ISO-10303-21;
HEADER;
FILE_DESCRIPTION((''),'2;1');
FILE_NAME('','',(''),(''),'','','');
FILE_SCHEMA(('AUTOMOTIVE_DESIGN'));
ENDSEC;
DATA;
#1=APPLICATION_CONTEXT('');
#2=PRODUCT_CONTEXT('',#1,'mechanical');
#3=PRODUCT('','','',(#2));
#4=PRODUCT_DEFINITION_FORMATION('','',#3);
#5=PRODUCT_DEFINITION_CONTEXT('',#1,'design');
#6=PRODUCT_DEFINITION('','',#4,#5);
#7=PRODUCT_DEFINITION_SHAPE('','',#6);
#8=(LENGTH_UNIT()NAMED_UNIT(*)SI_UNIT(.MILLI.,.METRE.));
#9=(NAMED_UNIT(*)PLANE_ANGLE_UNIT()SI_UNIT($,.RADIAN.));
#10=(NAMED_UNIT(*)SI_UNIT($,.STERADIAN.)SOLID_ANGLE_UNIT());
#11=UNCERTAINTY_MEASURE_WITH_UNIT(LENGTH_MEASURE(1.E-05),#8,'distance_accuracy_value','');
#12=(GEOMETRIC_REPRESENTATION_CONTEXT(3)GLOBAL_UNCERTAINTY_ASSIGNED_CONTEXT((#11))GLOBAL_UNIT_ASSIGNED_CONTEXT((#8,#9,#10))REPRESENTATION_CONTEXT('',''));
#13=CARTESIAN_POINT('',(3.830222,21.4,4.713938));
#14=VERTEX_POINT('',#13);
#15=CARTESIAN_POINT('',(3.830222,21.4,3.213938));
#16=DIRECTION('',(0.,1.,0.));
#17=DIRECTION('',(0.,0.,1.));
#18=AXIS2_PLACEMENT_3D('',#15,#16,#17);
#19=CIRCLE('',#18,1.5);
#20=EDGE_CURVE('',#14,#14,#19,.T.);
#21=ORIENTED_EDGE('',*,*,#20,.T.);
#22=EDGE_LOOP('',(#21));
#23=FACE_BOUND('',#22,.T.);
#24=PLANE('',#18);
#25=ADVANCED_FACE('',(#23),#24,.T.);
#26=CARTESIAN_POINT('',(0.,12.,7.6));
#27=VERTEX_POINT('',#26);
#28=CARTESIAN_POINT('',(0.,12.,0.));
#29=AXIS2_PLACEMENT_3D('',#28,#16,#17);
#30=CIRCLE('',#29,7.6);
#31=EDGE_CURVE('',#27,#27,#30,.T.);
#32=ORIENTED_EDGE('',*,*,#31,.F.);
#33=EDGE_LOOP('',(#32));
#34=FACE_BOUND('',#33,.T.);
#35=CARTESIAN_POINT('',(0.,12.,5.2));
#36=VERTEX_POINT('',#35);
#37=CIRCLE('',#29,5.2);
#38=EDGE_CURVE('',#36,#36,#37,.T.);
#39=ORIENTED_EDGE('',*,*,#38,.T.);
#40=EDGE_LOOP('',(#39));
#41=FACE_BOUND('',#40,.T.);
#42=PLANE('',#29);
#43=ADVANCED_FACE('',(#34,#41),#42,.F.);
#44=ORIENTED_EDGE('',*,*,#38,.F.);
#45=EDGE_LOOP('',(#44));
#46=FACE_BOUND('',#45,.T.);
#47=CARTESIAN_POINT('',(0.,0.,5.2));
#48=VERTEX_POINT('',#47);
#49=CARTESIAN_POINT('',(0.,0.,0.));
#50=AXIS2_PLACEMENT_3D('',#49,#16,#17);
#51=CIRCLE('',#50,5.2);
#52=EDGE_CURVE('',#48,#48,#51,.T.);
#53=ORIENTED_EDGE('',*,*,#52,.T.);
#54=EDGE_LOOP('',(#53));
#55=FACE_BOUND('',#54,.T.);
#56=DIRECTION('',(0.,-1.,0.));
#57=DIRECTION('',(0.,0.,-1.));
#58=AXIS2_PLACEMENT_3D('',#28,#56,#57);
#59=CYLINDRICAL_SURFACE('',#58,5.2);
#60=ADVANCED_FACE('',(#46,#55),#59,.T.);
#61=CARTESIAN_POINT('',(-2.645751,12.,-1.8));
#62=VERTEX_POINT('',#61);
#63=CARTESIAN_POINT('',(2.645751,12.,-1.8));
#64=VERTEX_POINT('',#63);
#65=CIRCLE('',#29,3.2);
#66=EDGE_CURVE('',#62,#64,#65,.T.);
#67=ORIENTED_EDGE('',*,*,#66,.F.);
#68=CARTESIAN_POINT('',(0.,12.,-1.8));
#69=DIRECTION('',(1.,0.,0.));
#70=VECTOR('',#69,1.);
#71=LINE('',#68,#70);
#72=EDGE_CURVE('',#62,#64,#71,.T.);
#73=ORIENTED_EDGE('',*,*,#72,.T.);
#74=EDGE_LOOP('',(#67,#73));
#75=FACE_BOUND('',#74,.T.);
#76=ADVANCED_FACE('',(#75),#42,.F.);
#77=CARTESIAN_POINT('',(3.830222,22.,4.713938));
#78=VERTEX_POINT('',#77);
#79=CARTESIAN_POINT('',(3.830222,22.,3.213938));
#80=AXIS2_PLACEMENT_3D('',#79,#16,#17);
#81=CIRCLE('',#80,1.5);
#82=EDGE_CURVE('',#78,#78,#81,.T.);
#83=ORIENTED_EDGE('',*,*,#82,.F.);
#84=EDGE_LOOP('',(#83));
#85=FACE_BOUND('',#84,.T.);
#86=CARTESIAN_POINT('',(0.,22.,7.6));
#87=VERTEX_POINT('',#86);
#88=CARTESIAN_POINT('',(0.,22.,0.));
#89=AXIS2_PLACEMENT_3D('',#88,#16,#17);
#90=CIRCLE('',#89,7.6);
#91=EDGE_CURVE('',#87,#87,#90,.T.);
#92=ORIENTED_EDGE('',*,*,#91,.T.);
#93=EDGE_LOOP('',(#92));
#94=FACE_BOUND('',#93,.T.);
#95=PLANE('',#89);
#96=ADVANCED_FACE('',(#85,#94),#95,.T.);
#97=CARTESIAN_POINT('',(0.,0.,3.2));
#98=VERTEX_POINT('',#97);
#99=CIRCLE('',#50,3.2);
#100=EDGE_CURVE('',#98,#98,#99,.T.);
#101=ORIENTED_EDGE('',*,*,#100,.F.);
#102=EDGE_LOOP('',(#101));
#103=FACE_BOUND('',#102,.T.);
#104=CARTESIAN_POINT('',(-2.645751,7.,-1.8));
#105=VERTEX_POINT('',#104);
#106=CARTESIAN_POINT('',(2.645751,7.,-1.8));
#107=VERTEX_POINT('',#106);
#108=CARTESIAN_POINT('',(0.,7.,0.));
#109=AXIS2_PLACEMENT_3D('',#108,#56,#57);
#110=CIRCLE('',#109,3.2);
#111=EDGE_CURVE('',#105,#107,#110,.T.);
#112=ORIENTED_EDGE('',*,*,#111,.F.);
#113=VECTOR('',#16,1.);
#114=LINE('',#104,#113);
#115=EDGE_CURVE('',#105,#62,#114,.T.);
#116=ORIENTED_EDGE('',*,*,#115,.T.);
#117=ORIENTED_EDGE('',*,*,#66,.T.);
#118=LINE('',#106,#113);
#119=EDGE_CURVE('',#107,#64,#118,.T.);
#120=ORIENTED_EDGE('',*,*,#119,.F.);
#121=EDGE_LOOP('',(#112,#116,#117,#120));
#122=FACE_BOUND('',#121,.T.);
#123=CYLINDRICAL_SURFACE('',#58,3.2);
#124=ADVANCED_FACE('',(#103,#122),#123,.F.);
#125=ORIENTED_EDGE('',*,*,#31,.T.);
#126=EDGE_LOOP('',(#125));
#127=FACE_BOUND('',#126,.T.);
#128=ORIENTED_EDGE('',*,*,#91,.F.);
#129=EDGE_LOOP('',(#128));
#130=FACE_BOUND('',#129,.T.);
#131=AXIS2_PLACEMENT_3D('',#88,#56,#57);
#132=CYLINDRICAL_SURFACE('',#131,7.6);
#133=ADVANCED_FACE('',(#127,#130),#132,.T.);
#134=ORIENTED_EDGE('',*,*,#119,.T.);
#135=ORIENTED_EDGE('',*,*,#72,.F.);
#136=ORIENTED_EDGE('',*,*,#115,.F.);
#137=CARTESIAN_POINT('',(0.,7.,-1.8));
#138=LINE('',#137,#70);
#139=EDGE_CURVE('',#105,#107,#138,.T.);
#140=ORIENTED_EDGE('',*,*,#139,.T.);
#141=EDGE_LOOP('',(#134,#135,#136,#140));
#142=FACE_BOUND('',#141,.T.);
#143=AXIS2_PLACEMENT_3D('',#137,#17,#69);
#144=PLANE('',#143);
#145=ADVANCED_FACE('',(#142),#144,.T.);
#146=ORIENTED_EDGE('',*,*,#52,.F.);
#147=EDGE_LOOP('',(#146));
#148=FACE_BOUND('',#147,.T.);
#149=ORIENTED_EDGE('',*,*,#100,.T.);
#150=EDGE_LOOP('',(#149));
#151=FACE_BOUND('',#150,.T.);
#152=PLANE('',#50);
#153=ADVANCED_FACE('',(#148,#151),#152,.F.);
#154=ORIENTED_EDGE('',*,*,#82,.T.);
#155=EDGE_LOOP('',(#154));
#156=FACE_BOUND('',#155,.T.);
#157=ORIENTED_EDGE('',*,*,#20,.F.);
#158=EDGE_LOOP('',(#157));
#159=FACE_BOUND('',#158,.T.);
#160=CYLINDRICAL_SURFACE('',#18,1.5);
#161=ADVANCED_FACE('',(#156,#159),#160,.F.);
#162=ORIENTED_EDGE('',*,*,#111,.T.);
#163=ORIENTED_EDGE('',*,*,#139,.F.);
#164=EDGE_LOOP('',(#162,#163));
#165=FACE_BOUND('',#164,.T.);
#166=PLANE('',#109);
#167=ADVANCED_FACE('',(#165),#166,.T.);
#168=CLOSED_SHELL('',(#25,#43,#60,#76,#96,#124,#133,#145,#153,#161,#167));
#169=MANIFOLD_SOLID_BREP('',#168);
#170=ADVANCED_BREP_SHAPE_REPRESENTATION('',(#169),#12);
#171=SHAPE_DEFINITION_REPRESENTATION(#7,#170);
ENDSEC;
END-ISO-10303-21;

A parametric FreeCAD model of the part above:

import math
import FreeCAD as App
import Part
import Sketcher

doc = App.newDocument("Part")
body = doc.addObject("PartDesign::Body", "Body")

sketch1 = body.newObject("Sketcher::SketchObject", "Sketch")
sketch1.AttachmentSupport = (doc.getObject("XZ_Plane"), [""])
sketch1.MapMode = "FlatFace"
sketch1.addGeometry(Part.Circle(App.Vector(0, 0, 0), App.Vector(0, 0, 1), 5.2), False)
sketch1.addGeometry(Part.Circle(App.Vector(0, 0, 0), App.Vector(0, 0, 1), 3.2), False)
sketch1.addConstraint(Sketcher.Constraint("Coincident", 0, 3, -1, 1))
sketch1.addConstraint(Sketcher.Constraint("Coincident", 1, 3, -1, 1))
sketch1.addConstraint(Sketcher.Constraint("Diameter", 0, 10.4))
sketch1.addConstraint(Sketcher.Constraint("Diameter", 1, 6.4))
pad1 = body.newObject("PartDesign::Pad", "Pad")
pad1.Profile = sketch1
pad1.Length = 12
pad1.Reversed = True

sketch2 = body.newObject("Sketcher::SketchObject", "Sketch001")
sketch2.AttachmentSupport = (doc.getObject("XZ_Plane"), [""])
sketch2.MapMode = "FlatFace"
sketch2.AttachmentOffset = App.Placement(App.Vector(0, 0, -12), App.Rotation())
sketch2.addGeometry(Part.Circle(App.Vector(0, 0, 0), App.Vector(0, 0, 1), 7.6), False)
sketch2.addConstraint(Sketcher.Constraint("Coincident", 0, 3, -1, 1))
sketch2.addConstraint(Sketcher.Constraint("Diameter", 0, 15.2))
pad2 = body.newObject("PartDesign::Pad", "Pad001")
pad2.Profile = sketch2
pad2.Length = 10
pad2.Reversed = True

sketch3 = body.newObject("Sketcher::SketchObject", "Sketch002")
sketch3.AttachmentSupport = (doc.getObject("XZ_Plane"), [""])
sketch3.MapMode = "FlatFace"
sketch3.AttachmentOffset = App.Placement(App.Vector(0, 0, -7), App.Rotation())
sketch3.addGeometry(Part.LineSegment(App.Vector(2.645751, -1.8, 0), App.Vector(-2.645751, -1.8, 0)), False)
sketch3.addGeometry(Part.ArcOfCircle(Part.Circle(App.Vector(0, 0, 0), App.Vector(0, 0, 1), 3.2), math.radians(-145.771134), math.radians(-34.228866)), False)
sketch3.addConstraint(Sketcher.Constraint("Coincident", 0, 1, 1, 2))
sketch3.addConstraint(Sketcher.Constraint("Coincident", 1, 1, 0, 2))
sketch3.addConstraint(Sketcher.Constraint("Horizontal", 0))
sketch3.addConstraint(Sketcher.Constraint("Coincident", 1, 3, -1, 1))
sketch3.addConstraint(Sketcher.Constraint("Radius", 1, 3.2))
sketch3.addConstraint(Sketcher.Constraint("DistanceY", 0, 1, -1, 1, 1.8))
pad3 = body.newObject("PartDesign::Pad", "Pad002")
pad3.Profile = sketch3
pad3.Length = 5
pad3.Reversed = True

sketch4 = body.newObject("Sketcher::SketchObject", "Sketch003")
sketch4.AttachmentSupport = (doc.getObject("XZ_Plane"), [""])
sketch4.MapMode = "FlatFace"
sketch4.AttachmentOffset = App.Placement(App.Vector(0, 0, -22), App.Rotation())
sketch4.addGeometry(Part.Circle(App.Vector(3.830222, 3.213938, 0), App.Vector(0, 0, 1), 1.5), False)
sketch4.addConstraint(Sketcher.Constraint("Diameter", 0, 3.0))
sketch4.addConstraint(Sketcher.Constraint("DistanceY", -1, 1, 0, 3, 3.213938))
sketch4.addConstraint(Sketcher.Constraint("DistanceX", -1, 1, 0, 3, 3.830222))
pocket1 = body.newObject("PartDesign::Pocket", "Pocket")
pocket1.Profile = sketch4
pocket1.Length = 0.6
pocket1.Reversed = True

doc.recompute()
